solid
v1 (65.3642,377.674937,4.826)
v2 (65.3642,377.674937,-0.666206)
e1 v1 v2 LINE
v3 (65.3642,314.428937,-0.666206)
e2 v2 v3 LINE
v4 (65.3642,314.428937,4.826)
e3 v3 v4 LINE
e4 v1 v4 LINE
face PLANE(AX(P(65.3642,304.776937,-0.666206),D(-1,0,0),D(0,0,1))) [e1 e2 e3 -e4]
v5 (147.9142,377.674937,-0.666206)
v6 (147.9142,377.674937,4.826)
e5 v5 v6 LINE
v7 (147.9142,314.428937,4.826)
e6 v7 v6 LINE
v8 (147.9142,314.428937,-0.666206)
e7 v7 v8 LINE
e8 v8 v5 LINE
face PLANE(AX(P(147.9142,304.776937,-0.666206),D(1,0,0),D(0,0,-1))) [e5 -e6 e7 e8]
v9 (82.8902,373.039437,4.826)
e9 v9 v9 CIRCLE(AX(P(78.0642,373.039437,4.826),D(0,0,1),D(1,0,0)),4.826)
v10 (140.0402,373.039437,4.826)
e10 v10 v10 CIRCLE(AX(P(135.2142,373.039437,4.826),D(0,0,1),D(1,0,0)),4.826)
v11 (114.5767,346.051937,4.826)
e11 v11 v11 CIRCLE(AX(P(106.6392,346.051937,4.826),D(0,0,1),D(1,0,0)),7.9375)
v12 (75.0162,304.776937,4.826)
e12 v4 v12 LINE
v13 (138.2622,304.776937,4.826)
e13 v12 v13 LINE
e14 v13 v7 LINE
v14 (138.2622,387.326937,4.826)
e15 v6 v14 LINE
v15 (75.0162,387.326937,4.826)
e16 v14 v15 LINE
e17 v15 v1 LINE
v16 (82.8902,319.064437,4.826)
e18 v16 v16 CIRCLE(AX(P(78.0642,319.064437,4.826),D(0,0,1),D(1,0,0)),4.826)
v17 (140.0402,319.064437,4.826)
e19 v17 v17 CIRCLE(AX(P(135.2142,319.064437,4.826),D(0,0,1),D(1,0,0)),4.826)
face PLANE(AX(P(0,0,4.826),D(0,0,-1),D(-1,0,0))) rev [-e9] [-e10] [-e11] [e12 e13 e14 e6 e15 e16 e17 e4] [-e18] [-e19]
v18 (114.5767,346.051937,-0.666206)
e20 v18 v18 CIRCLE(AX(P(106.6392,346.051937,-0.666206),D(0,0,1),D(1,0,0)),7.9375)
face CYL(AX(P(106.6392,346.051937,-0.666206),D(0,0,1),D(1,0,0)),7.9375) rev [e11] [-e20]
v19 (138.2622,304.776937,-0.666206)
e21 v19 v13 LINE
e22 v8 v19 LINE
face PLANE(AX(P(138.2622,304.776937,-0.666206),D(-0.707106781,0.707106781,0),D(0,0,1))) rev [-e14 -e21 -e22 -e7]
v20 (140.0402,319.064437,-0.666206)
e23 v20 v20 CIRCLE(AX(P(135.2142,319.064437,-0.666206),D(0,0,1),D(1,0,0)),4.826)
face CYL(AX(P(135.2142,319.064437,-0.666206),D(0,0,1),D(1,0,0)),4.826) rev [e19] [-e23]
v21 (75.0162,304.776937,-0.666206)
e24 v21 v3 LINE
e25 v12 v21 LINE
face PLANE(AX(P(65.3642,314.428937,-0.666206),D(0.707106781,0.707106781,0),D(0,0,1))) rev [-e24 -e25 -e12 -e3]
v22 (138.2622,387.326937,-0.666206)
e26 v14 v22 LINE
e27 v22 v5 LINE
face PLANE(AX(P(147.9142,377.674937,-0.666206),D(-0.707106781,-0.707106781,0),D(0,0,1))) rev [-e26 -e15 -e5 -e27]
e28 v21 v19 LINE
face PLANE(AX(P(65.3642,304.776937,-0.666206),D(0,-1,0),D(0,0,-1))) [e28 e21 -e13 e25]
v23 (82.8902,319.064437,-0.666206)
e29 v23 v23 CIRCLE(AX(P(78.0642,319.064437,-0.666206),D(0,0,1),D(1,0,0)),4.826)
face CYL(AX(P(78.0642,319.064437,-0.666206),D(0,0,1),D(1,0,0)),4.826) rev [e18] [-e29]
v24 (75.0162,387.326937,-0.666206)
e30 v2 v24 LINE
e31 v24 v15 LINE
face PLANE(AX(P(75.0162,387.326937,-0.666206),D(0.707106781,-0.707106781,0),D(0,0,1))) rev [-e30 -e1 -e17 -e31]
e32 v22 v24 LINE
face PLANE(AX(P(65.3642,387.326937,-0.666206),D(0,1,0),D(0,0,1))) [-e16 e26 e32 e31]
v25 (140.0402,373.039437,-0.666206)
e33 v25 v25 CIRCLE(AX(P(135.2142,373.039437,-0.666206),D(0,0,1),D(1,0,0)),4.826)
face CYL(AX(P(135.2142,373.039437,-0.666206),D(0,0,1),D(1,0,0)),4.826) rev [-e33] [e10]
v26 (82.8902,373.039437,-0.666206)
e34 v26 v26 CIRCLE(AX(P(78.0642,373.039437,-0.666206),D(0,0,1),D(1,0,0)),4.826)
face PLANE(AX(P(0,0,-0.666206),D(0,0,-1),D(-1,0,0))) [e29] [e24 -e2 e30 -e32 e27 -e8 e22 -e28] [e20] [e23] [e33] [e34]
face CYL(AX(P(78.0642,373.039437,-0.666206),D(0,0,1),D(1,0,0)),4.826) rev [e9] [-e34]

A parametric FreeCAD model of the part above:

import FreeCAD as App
import Part
import Sketcher

V = App.Vector
Q = App.Units.Quantity


def edges_at(feature, points):
    """Names of the edges that pass closest to the given points."""
    edges = feature.Shape.Edges
    near = lambda p: min(range(len(edges)), key=lambda i: edges[i].distToShape(Part.Vertex(*p))[0])
    return sorted({f"Edge{near(p) + 1}" for p in points})

doc = App.newDocument("Part")
body = doc.addObject("PartDesign::Body", "Body")

# Sketch on XY plane
sketch1 = body.newObject("Sketcher::SketchObject", "Sketch")
sketch1.AttachmentSupport = (doc.getObject("XY_Plane"), [""])
sketch1.MapMode = "FlatFace"
sketch1.addGeometry([
    Part.LineSegment(V(65.4, 387.3, 0), V(65.4, 304.8, 0)),  # 0
    Part.LineSegment(V(65.4, 304.8, 0), V(147.9, 304.8, 0)),  # 1
    Part.LineSegment(V(147.9, 304.8, 0), V(147.9, 387.3, 0)),  # 2
    Part.LineSegment(V(147.9, 387.3, 0), V(65.4, 387.3, 0)),  # 3
    Part.Circle(V(78.1, 319.1, 0), V(0, 0, 1), 4.8),  # 4
    Part.Circle(V(135.2, 319.1, 0), V(0, 0, 1), 4.8),  # 5
    Part.Circle(V(78.1, 373, 0), V(0, 0, 1), 4.8),  # 6
    Part.Circle(V(106.6, 346.1, 0), V(0, 0, 1), 7.9),  # 7
    Part.Circle(V(135.2, 373, 0), V(0, 0, 1), 4.8),  # 8
], False)
sketch1.addConstraint([
    Sketcher.Constraint("Coincident", 0, 2, 1, 1),
    Sketcher.Constraint("Coincident", 1, 2, 2, 1),
    Sketcher.Constraint("Coincident", 2, 2, 3, 1),
    Sketcher.Constraint("Coincident", 3, 2, 0, 1),
    Sketcher.Constraint("Vertical", 0),
    Sketcher.Constraint("Horizontal", 1),
    Sketcher.Constraint("Vertical", 2),
    Sketcher.Constraint("Horizontal", 3),
    Sketcher.Constraint("Equal", 4, 5),
    Sketcher.Constraint("Equal", 5, 6),
    Sketcher.Constraint("Equal", 6, 8),
    Sketcher.Constraint("Horizontal", 4, 3, 5, 3),
    Sketcher.Constraint("Horizontal", 6, 3, 8, 3),
    Sketcher.Constraint("Vertical", 4, 3, 6, 3),
    Sketcher.Constraint("Vertical", 5, 3, 8, 3),
    Sketcher.Constraint("Equal", 3, 0),
    Sketcher.Constraint("Diameter", 4, Q("0.38 in")),
    Sketcher.Constraint("Diameter", 7, Q("0.625 in")),
    Sketcher.Constraint("DistanceX", 1, 1, 1, 2, Q("3.25 in")),
    Sketcher.Constraint("DistanceX", 0, 2, 4, 3, Q("0.5 in")),
    Sketcher.Constraint("DistanceX", 5, 3, 1, 2, Q("0.5 in")),
    Sketcher.Constraint("DistanceY", 4, 3, 6, 3, Q("2.125 in")),
    Sketcher.Constraint("DistanceX", 4, 3, 7, 3, Q("1.125 in")),
    Sketcher.Constraint("DistanceY", 4, 3, 7, 3, Q("1.0625 in")),
    Sketcher.Constraint("DistanceY", 0, 2, 4, 3, Q("0.5625 in")),
    Sketcher.Constraint("DistanceX", -1, 1, 4, 3, 78.0642),
    Sketcher.Constraint("DistanceY", -1, 1, 4, 3, 319.064437),
])
pad1 = body.newObject("PartDesign::Pad", "Pad")
pad1.Profile = sketch1
pad1.Type = "TwoLengths"
pad1.Length = Q("0.19 in")
pad1.Length2 = 0.666206
doc.recompute()

chamfer = body.newObject("PartDesign::Chamfer", "Chamfer")
chamfer.Base = (pad1, edges_at(pad1, [
    (147.914, 304.777, 2.08),
    (65.364, 304.777, 2.08),
    (65.364, 387.327, 2.08),
    (147.914, 387.327, 2.08),
]))
chamfer.Size = Q("0.38 in")

doc.recompute()
